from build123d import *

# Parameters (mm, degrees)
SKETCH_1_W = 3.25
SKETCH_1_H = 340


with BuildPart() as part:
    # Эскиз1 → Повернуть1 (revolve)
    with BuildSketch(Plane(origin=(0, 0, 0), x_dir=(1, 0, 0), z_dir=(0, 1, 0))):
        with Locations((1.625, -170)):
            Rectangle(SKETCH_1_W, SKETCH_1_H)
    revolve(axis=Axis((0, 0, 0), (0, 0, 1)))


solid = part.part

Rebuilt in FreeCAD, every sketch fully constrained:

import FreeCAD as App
import Part
import Sketcher
from FreeCAD import Vector
Q = App.Units.Quantity


def add_polygon(sketch, points):
    """Adds a closed chain of lines whose ends are joined by coincident constraints."""
    first, n = sketch.GeometryCount, len(points)
    for a, b in zip(points, points[1:] + points[:1]):
        sketch.addGeometry(Part.LineSegment(App.Vector(*a, 0), App.Vector(*b, 0)), False)
    for i in range(n):
        sketch.addConstraint(Sketcher.Constraint("Coincident", first + i, 2, first + (i + 1) % n, 1))

doc = App.newDocument("Part")
params = doc.addObject("Spreadsheet::Sheet", "Params")
for row, (alias, value) in enumerate([
    ("sketch1_height", "340 mm"),
    ("sketch1_width", "3.25 mm"),
    ("revolution_angle", "360 deg"),
], start=1):
    params.set(f"A{row}", alias)
    params.set(f"B{row}", "=" + value)
    params.setAlias(f"B{row}", alias)

body = doc.addObject("PartDesign::Body", "Body")

# Sketch on XZ plane
sketch1 = body.newObject("Sketcher::SketchObject", "Sketch")
sketch1.AttachmentSupport = (doc.getObject("XZ_Plane"), [""])
sketch1.MapMode = "FlatFace"
add_polygon(sketch1, [(0, 0), (0, 340), (3.2, 340), (3.2, 0)])  # lines 0-3
sketch1.addConstraint([
    Sketcher.Constraint("Vertical", 0),
    Sketcher.Constraint("Horizontal", 1),
    Sketcher.Constraint("Vertical", 2),
    Sketcher.Constraint("Horizontal", 3),
    Sketcher.Constraint("Coincident", 3, 2, -1, 1),
    Sketcher.Constraint("DistanceY", 0, 1, 0, 2, Q("340 mm")),
    Sketcher.Constraint("DistanceX", 1, 1, 1, 2, Q("3.25 mm")),
])
sketch1.setExpression("Constraints[9]", "Params.sketch1_height")
sketch1.setExpression("Constraints[10]", "Params.sketch1_width")
revolution = body.newObject("PartDesign::Revolution", "Revolution")
revolution.Profile = sketch1
revolution.ReferenceAxis = (sketch1, ["V_Axis"])
revolution.setExpression("Angle", "Params.revolution_angle")

doc.recompute()
